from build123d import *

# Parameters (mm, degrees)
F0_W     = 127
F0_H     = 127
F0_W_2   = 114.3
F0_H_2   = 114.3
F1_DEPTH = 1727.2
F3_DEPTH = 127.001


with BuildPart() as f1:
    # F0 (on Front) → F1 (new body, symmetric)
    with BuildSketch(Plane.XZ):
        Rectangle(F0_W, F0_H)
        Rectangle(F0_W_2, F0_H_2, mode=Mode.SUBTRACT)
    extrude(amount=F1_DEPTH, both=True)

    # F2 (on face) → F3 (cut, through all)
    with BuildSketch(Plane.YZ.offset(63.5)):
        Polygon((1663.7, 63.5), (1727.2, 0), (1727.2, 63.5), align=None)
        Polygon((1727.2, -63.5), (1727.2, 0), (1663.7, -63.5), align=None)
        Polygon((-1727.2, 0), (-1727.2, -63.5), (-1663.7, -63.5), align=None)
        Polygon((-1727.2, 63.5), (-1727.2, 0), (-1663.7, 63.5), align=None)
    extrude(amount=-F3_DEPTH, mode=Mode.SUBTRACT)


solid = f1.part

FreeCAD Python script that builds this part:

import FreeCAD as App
import Part
import Sketcher

V = App.Vector
Q = App.Units.Quantity


def add_polygon(sketch, points):
    """Adds a closed chain of lines whose ends are joined by coincident constraints."""
    first, n = sketch.GeometryCount, len(points)
    for a, b in zip(points, points[1:] + points[:1]):
        sketch.addGeometry(Part.LineSegment(App.Vector(*a, 0), App.Vector(*b, 0)), False)
    for i in range(n):
        sketch.addConstraint(Sketcher.Constraint("Coincident", first + i, 2, first + (i + 1) % n, 1))

doc = App.newDocument("Part")
body = doc.addObject("PartDesign::Body", "Body")

sketch1 = doc.addObject("Sketcher::SketchObject", "Sketch")
body.addObject(sketch1)
sketch1.AttachmentSupport = (doc.XZ_Plane, [""])
sketch1.MapMode = "FlatFace"
add_polygon(sketch1, [(-64, 64), (-64, -64), (64, -64), (64, 64)])
add_polygon(sketch1, [(57, -57), (-57, -57), (-57, 57), (57, 57)])
sketch1.addConstraint([
    Sketcher.Constraint("Vertical", 0),
    Sketcher.Constraint("Horizontal", 1),
    Sketcher.Constraint("Vertical", 2),
    Sketcher.Constraint("Horizontal", 3),
    Sketcher.Constraint("Horizontal", 4),
    Sketcher.Constraint("Vertical", 5),
    Sketcher.Constraint("Horizontal", 6),
    Sketcher.Constraint("Vertical", 7),
    Sketcher.Constraint("Symmetric", 0, 2, 2, 2, -1, 1),
    Sketcher.Constraint("Symmetric", 4, 2, 6, 2, -1, 1),
    Sketcher.Constraint("Equal", 3, 0),
    Sketcher.Constraint("Equal", 6, 5),
    Sketcher.Constraint("DistanceX", 1, 1, 1, 2, Q("5 in")),
    Sketcher.Constraint("DistanceX", 4, 2, 4, 1, Q("4.5 in")),
])
pad1 = doc.addObject("PartDesign::Pad", "Pad")
body.addObject(pad1)
pad1.Profile = sketch1
pad1.Length = Q("136 in")
pad1.Midplane = True

sketch2 = doc.addObject("Sketcher::SketchObject", "Sketch001")
body.addObject(sketch2)
sketch2.AttachmentSupport = (doc.YZ_Plane, [""])
sketch2.MapMode = "FlatFace"
sketch2.AttachmentOffset = App.Placement(V(0, 0, 2.5 * 25.4), App.Rotation())
add_polygon(sketch2, [(1664, 64), (1727, 0), (1727, 64)])
add_polygon(sketch2, [(1727, -64), (1727, 0), (1664, -64)])
add_polygon(sketch2, [(-1727, 0), (-1727, -64), (-1664, -64)])
add_polygon(sketch2, [(-1727, 64), (-1727, 0), (-1664, 64)])
sketch2.addConstraint([
    Sketcher.Constraint("Vertical", 1),
    Sketcher.Constraint("Horizontal", 2),
    Sketcher.Constraint("Vertical", 3),
    Sketcher.Constraint("Horizontal", 5),
    Sketcher.Constraint("Vertical", 6),
    Sketcher.Constraint("Horizontal", 7),
    Sketcher.Constraint("Vertical", 9),
    Sketcher.Constraint("Horizontal", 11),
    Sketcher.Constraint("Coincident", 3, 2, 0, 2),
    Sketcher.Constraint("Coincident", 9, 2, 8, 2),
    Sketcher.Constraint("Symmetric", 1, 2, 6, 2, -1, 1),
    Sketcher.Constraint("Symmetric", 4, 2, 10, 2, -1, 1),
    Sketcher.Constraint("Symmetric", 4, 2, 7, 2, -2),
    Sketcher.Constraint("PointOnObject", 0, 2, -1),
    Sketcher.Constraint("PointOnObject", 8, 2, -1),
    Sketcher.Constraint("Perpendicular", 0, 4),
    Sketcher.Constraint("Perpendicular", 4, 8),
    Sketcher.Constraint("DistanceX", 2, 2, 2, 1, Q("2.5 in")),
    Sketcher.Constraint("DistanceX", -1, 1, 0, 2, Q("68 in")),
])
pocket1 = doc.addObject("PartDesign::Pocket", "Pocket")
body.addObject(pocket1)
pocket1.Profile = sketch2
pocket1.Type = "ThroughAll"

doc.recompute()
